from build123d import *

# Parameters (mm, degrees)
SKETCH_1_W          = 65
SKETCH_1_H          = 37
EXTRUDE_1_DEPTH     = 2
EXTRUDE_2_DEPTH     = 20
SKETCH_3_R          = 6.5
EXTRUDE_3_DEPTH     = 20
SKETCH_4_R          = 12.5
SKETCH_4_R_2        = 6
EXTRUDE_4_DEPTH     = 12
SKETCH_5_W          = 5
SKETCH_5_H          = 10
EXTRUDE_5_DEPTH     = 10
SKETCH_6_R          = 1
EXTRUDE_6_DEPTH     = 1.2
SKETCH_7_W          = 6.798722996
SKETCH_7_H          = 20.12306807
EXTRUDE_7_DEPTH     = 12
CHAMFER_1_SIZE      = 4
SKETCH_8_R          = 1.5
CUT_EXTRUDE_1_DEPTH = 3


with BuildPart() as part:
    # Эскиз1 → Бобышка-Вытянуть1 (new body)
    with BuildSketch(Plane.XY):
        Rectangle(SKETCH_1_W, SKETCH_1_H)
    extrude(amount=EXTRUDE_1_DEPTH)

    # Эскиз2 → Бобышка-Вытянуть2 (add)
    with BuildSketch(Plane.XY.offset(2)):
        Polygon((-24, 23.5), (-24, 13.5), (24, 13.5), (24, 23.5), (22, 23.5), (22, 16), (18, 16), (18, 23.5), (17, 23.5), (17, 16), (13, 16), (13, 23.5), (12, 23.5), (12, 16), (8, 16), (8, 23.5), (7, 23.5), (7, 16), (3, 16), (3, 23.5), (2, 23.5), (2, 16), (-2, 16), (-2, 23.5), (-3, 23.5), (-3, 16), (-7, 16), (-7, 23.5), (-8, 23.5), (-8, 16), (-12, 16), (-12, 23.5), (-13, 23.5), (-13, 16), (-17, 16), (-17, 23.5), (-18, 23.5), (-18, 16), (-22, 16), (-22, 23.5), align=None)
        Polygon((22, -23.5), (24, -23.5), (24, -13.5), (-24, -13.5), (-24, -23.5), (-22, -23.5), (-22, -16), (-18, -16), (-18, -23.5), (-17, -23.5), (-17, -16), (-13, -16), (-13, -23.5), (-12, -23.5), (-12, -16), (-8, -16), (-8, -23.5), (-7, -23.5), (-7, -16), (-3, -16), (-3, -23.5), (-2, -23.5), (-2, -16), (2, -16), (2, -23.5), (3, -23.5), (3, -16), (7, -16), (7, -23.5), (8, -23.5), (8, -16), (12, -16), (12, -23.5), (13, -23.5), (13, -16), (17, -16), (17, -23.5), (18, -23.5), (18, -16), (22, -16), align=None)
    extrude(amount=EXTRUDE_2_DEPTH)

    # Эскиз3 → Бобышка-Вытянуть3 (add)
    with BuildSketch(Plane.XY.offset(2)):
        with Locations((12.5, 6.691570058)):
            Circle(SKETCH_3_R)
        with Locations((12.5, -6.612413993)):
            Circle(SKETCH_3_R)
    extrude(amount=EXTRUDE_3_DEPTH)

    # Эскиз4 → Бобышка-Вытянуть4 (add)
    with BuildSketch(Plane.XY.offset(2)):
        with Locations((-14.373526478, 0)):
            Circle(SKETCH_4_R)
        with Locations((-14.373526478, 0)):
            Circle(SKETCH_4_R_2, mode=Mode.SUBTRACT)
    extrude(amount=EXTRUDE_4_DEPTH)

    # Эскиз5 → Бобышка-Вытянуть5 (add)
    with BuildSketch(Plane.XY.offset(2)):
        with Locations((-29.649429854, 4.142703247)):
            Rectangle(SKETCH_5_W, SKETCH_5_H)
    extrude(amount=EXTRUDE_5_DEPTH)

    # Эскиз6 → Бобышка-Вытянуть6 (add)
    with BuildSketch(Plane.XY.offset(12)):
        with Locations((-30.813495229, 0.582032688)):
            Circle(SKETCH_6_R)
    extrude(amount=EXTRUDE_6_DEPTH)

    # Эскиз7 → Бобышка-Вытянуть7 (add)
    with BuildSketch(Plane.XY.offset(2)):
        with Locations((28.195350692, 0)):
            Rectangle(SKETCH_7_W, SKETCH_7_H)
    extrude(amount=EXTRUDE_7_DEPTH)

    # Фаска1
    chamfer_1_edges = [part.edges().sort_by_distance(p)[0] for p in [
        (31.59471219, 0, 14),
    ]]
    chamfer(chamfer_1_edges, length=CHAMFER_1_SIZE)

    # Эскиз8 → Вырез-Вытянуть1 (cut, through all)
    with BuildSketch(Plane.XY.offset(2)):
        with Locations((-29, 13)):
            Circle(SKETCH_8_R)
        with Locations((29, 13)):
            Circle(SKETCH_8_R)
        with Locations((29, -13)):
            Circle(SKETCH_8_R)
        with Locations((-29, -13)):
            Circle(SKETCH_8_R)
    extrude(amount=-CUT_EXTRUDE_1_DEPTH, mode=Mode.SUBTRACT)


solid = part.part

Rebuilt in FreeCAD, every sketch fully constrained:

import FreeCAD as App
import Part
import Sketcher
from FreeCAD import Vector


def edges_at(feature, points):
    """Names of the edges that pass closest to the given points."""
    edges = feature.Shape.Edges
    near = lambda p: min(range(len(edges)), key=lambda i: edges[i].distToShape(Part.Vertex(*p))[0])
    return sorted({f"Edge{near(p) + 1}" for p in points})


def add_polygon(sketch, points):
    """Adds a closed chain of lines whose ends are joined by coincident constraints."""
    first, n = sketch.GeometryCount, len(points)
    for a, b in zip(points, points[1:] + points[:1]):
        sketch.addGeometry(Part.LineSegment(App.Vector(*a, 0), App.Vector(*b, 0)), False)
    for i in range(n):
        sketch.addConstraint(Sketcher.Constraint("Coincident", first + i, 2, first + (i + 1) % n, 1))

doc = App.newDocument("Part")
params = doc.addObject("Spreadsheet::Sheet", "Params")
for row, (alias, value) in enumerate([
    ("sketch1_width", "65 mm"),
    ("sketch1_height", "37 mm"),
    ("pad1_length", "2 mm"),
    ("sketch2_width", "48 mm"),
    ("sketch2_width2", "2 mm"),
    ("sketch2_width3", "4 mm"),
    ("sketch2_height", "10 mm"),
    ("sketch2_height2", "7.5 mm"),
    ("pad2_length", "20 mm"),
    ("sketch3_diameter", "13 mm"),
    ("pad3_length", "20 mm"),
    ("sketch4_diameter", "25 mm"),
    ("sketch4_diameter2", "12 mm"),
    ("pad4_length", "12 mm"),
    ("sketch5_width", "5 mm"),
    ("sketch5_height", "10 mm"),
    ("pad5_length", "10 mm"),
    ("sketch6_diameter", "2 mm"),
    ("pad6_length", "1.2 mm"),
    ("pad7_length", "12 mm"),
    ("chamfer_size", "4 mm"),
    ("sketch8_diameter", "3 mm"),
], start=1):
    params.set(f"A{row}", alias)
    params.set(f"B{row}", "=" + value)
    params.setAlias(f"B{row}", alias)

body = doc.addObject("PartDesign::Body", "Body")

sketch1 = body.newObject("Sketcher::SketchObject", "Sketch")
sketch1.AttachmentSupport = (doc.getObject("XY_Plane"), [""])
sketch1.MapMode = "FlatFace"
add_polygon(sketch1, [(-32, 18), (-32, -18), (32, -18), (32, 18)])
sketch1.addConstraint([
    Sketcher.Constraint("Vertical", 0),
    Sketcher.Constraint("Horizontal", 1),
    Sketcher.Constraint("Vertical", 2),
    Sketcher.Constraint("Horizontal", 3),
    Sketcher.Constraint("Symmetric", 0, 2, 2, 2, -1, 1),
    Sketcher.Constraint("DistanceX", 1, 1, 1, 2, 65.0),
    Sketcher.Constraint("DistanceY", 0, 2, 0, 1, 37.0),
])
sketch1.setExpression("Constraints[9]", "Params.sketch1_width")
sketch1.setExpression("Constraints[10]", "Params.sketch1_height")
pad1 = body.newObject("PartDesign::Pad", "Pad")
pad1.Profile = sketch1
pad1.setExpression("Length", "Params.pad1_length")

sketch2 = body.newObject("Sketcher::SketchObject", "Sketch001")
sketch2.AttachmentSupport = (doc.getObject("XY_Plane"), [""])
sketch2.MapMode = "FlatFace"
sketch2.AttachmentOffset = App.Placement(Vector(0, 0, 2), App.Rotation())
add_polygon(sketch2, [(-24, 23.5), (-24, 13.5), (24, 13.5), (24, 23.5), (22, 23.5), (22, 16), (18, 16), (18, 23.5), (17, 23.5), (17, 16), (13, 16), (13, 23.5), (12, 23.5), (12, 16), (8, 16), (8, 23.5), (7, 23.5), (7, 16), (3, 16), (3, 23.5), (2, 23.5), (2, 16), (-2, 16), (-2, 23.5), (-3, 23.5), (-3, 16), (-7, 16), (-7, 23.5), (-8, 23.5), (-8, 16), (-12, 16), (-12, 23.5), (-13, 23.5), (-13, 16), (-17, 16), (-17, 23.5), (-18, 23.5), (-18, 16), (-22, 16), (-22, 23.5)])
add_polygon(sketch2, [(22, -23.5), (24, -23.5), (24, -13.5), (-24, -13.5), (-24, -23.5), (-22, -23.5), (-22, -16), (-18, -16), (-18, -23.5), (-17, -23.5), (-17, -16), (-13, -16), (-13, -23.5), (-12, -23.5), (-12, -16), (-8, -16), (-8, -23.5), (-7, -23.5), (-7, -16), (-3, -16), (-3, -23.5), (-2, -23.5), (-2, -16), (2, -16), (2, -23.5), (3, -23.5), (3, -16), (7, -16), (7, -23.5), (8, -23.5), (8, -16), (12, -16), (12, -23.5), (13, -23.5), (13, -16), (17, -16), (17, -23.5), (18, -23.5), (18, -16), (22, -16)])
sketch2.addConstraint([
    Sketcher.Constraint("Vertical", 0),
    Sketcher.Constraint("Horizontal", 1),
    Sketcher.Constraint("Vertical", 2),
    Sketcher.Constraint("Horizontal", 3),
    Sketcher.Constraint("Vertical", 4),
    Sketcher.Constraint("Horizontal", 5),
    Sketcher.Constraint("Vertical", 6),
    Sketcher.Constraint("Horizontal", 7),
    Sketcher.Constraint("Vertical", 8),
    Sketcher.Constraint("Horizontal", 9),
    Sketcher.Constraint("Vertical", 10),
    Sketcher.Constraint("Horizontal", 11),
    Sketcher.Constraint("Vertical", 12),
    Sketcher.Constraint("Horizontal", 13),
    Sketcher.Constraint("Vertical", 14),
    Sketcher.Constraint("Horizontal", 15),
    Sketcher.Constraint("Vertical", 16),
    Sketcher.Constraint("Horizontal", 17),
    Sketcher.Constraint("Vertical", 18),
    Sketcher.Constraint("Horizontal", 19),
    Sketcher.Constraint("Vertical", 20),
    Sketcher.Constraint("Horizontal", 21),
    Sketcher.Constraint("Vertical", 22),
    Sketcher.Constraint("Horizontal", 23),
    Sketcher.Constraint("Vertical", 24),
    Sketcher.Constraint("Horizontal", 25),
    Sketcher.Constraint("Vertical", 26),
    Sketcher.Constraint("Horizontal", 27),
    Sketcher.Constraint("Vertical", 28),
    Sketcher.Constraint("Horizontal", 29),
    Sketcher.Constraint("Vertical", 30),
    Sketcher.Constraint("Horizontal", 31),
    Sketcher.Constraint("Vertical", 32),
    Sketcher.Constraint("Horizontal", 33),
    Sketcher.Constraint("Vertical", 34),
    Sketcher.Constraint("Horizontal", 35),
    Sketcher.Constraint("Vertical", 36),
    Sketcher.Constraint("Horizontal", 37),
    Sketcher.Constraint("Vertical", 38),
    Sketcher.Constraint("Horizontal", 39),
    Sketcher.Constraint("Horizontal", 40),
    Sketcher.Constraint("Vertical", 41),
    Sketcher.Constraint("Horizontal", 42),
    Sketcher.Constraint("Vertical", 43),
    Sketcher.Constraint("Horizontal", 44),
    Sketcher.Constraint("Vertical", 45),
    Sketcher.Constraint("Horizontal", 46),
    Sketcher.Constraint("Vertical", 47),
    Sketcher.Constraint("Horizontal", 48),
    Sketcher.Constraint("Vertical", 49),
    Sketcher.Constraint("Horizontal", 50),
    Sketcher.Constraint("Vertical", 51),
    Sketcher.Constraint("Horizontal", 52),
    Sketcher.Constraint("Vertical", 53),
    Sketcher.Constraint("Horizontal", 54),
    Sketcher.Constraint("Vertical", 55),
    Sketcher.Constraint("Horizontal", 56),
    Sketcher.Constraint("Vertical", 57),
    Sketcher.Constraint("Horizontal", 58),
    Sketcher.Constraint("Vertical", 59),
    Sketcher.Constraint("Horizontal", 60),
    Sketcher.Constraint("Vertical", 61),
    Sketcher.Constraint("Horizontal", 62),
    Sketcher.Constraint("Vertical", 63),
    Sketcher.Constraint("Horizontal", 64),
    Sketcher.Constraint("Vertical", 65),
    Sketcher.Constraint("Horizontal", 66),
    Sketcher.Constraint("Vertical", 67),
    Sketcher.Constraint("Horizontal", 68),
    Sketcher.Constraint("Vertical", 69),
    Sketcher.Constraint("Horizontal", 70),
    Sketcher.Constraint("Vertical", 71),
    Sketcher.Constraint("Horizontal", 72),
    Sketcher.Constraint("Vertical", 73),
    Sketcher.Constraint("Horizontal", 74),
    Sketcher.Constraint("Vertical", 75),
    Sketcher.Constraint("Horizontal", 76),
    Sketcher.Constraint("Vertical", 77),
    Sketcher.Constraint("Horizontal", 78),
    Sketcher.Constraint("Vertical", 79),
    Sketcher.Constraint("Symmetric", 39, 2, 40, 2, -1, 1),
    Sketcher.Constraint("Symmetric", 1, 2, 42, 2, -1, 1),
    Sketcher.Constraint("Symmetric", 3, 2, 44, 2, -1, 1),
    Sketcher.Constraint("Symmetric", 5, 2, 46, 2, -1, 1),
    Sketcher.Constraint("Symmetric", 7, 2, 48, 2, -1, 1),
    Sketcher.Constraint("Symmetric", 9, 2, 50, 2, -1, 1),
    Sketcher.Constraint("Symmetric", 11, 2, 52, 2, -1, 1),
    Sketcher.Constraint("Symmetric", 13, 2, 54, 2, -1, 1),
    Sketcher.Constraint("Symmetric", 15, 2, 56, 2, -1, 1),
    Sketcher.Constraint("Symmetric", 17, 2, 58, 2, -1, 1),
    Sketcher.Constraint("Symmetric", 19, 2, 60, 2, -1, 1),
    Sketcher.Constraint("Symmetric", 21, 2, 62, 2, -1, 1),
    Sketcher.Constraint("Symmetric", 23, 2, 64, 2, -1, 1),
    Sketcher.Constraint("Symmetric", 25, 2, 66, 2, -1, 1),
    Sketcher.Constraint("Symmetric", 27, 2, 68, 2, -1, 1),
    Sketcher.Constraint("Symmetric", 29, 2, 70, 2, -1, 1),
    Sketcher.Constraint("Symmetric", 31, 2, 72, 2, -1, 1),
    Sketcher.Constraint("Symmetric", 33, 2, 74, 2, -1, 1),
    Sketcher.Constraint("Symmetric", 35, 2, 76, 2, -1, 1),
    Sketcher.Constraint("Symmetric", 37, 2, 78, 2, -1, 1),
    Sketcher.Constraint("Symmetric", 19, 2, 22, 2, -2),
    Sketcher.Constraint("Symmetric", 17, 2, 24, 2, -2),
    Sketcher.Constraint("Symmetric", 15, 2, 26, 2, -2),
    Sketcher.Constraint("Symmetric", 13, 2, 28, 2, -2),
    Sketcher.Constraint("Symmetric", 11, 2, 30, 2, -2),
    Sketcher.Constraint("Symmetric", 9, 2, 32, 2, -2),
    Sketcher.Constraint("Symmetric", 7, 2, 34, 2, -2),
    Sketcher.Constraint("Symmetric", 5, 2, 36, 2, -2),
    Sketcher.Constraint("Symmetric", 3, 2, 38, 2, -2),
    Sketcher.Constraint("Horizontal", 3, 2, 6, 2),
    Sketcher.Constraint("Horizontal", 5, 2, 8, 2),
    Sketcher.Constraint("Horizontal", 7, 2, 10, 2),
    Sketcher.Constraint("Horizontal", 9, 2, 12, 2),
    Sketcher.Constraint("Horizontal", 11, 2, 14, 2),
    Sketcher.Constraint("Horizontal", 13, 2, 16, 2),
    Sketcher.Constraint("Horizontal", 15, 2, 18, 2),
    Sketcher.Constraint("Horizontal", 17, 2, 20, 2),
    Sketcher.Constraint("Vertical", 2, 2, 40, 2),
    Sketcher.Constraint("Equal", 5, 9),
    Sketcher.Constraint("Equal", 7, 11),
    Sketcher.Constraint("Equal", 9, 13),
    Sketcher.Constraint("Equal", 11, 15),
    Sketcher.Constraint("Equal", 13, 17),
    Sketcher.Constraint("Equal", 15, 19),
    Sketcher.Constraint("Equal", 17, 21),
    Sketcher.Constraint("DistanceX", 1, 1, 1, 2, 48.0),
    Sketcher.Constraint("DistanceX", 3, 2, 3, 1, 2.0),
    Sketcher.Constraint("DistanceX", 5, 2, 5, 1, 4.0),
    Sketcher.Constraint("DistanceY", 0, 2, 0, 1, 10.0),
    Sketcher.Constraint("DistanceY", 4, 2, 4, 1, 7.5),
    Sketcher.Constraint("DistanceY", -1, 1, 4, 2, 16.0),
])
sketch2.setExpression("Constraints[205]", "Params.sketch2_width")
sketch2.setExpression("Constraints[206]", "Params.sketch2_width2")
sketch2.setExpression("Constraints[207]", "Params.sketch2_width3")
sketch2.setExpression("Constraints[208]", "Params.sketch2_height")
sketch2.setExpression("Constraints[209]", "Params.sketch2_height2")
pad2 = body.newObject("PartDesign::Pad", "Pad001")
pad2.Profile = sketch2
pad2.setExpression("Length", "Params.pad2_length")

sketch3 = body.newObject("Sketcher::SketchObject", "Sketch002")
sketch3.AttachmentSupport = (doc.getObject("XY_Plane"), [""])
sketch3.MapMode = "FlatFace"
sketch3.AttachmentOffset = App.Placement(Vector(0, 0, 2), App.Rotation())
sketch3.addGeometry([
    Part.Circle(Vector(12, 7, 0), Vector(0, 0, 1), 6),
    Part.Circle(Vector(12, -7, 0), Vector(0, 0, 1), 6),
], False)
sketch3.addConstraint([
    Sketcher.Constraint("Equal", 0, 1),
    Sketcher.Constraint("Vertical", 0, 3, 1, 3),
    Sketcher.Constraint("Diameter", 0, 13.0),
    Sketcher.Constraint("DistanceX", -1, 1, 0, 3, 12.5),
    Sketcher.Constraint("DistanceY", -1, 1, 0, 3, 6.69157),
    Sketcher.Constraint("DistanceY", 1, 3, -1, 1, 6.612414),
])
sketch3.setExpression("Constraints[2]", "Params.sketch3_diameter")
pad3 = body.newObject("PartDesign::Pad", "Pad002")
pad3.Profile = sketch3
pad3.setExpression("Length", "Params.pad3_length")

sketch4 = body.newObject("Sketcher::SketchObject", "Sketch003")
sketch4.AttachmentSupport = (doc.getObject("XY_Plane"), [""])
sketch4.MapMode = "FlatFace"
sketch4.AttachmentOffset = App.Placement(Vector(0, 0, 2), App.Rotation())
sketch4.addGeometry([
    Part.Circle(Vector(-14, 0, 0), Vector(0, 0, 1), 12),
    Part.Circle(Vector(-14, 0, 0), Vector(0, 0, 1), 6),
], False)
sketch4.addConstraint([
    Sketcher.Constraint("Coincident", 1, 3, 0, 3),
    Sketcher.Constraint("PointOnObject", 0, 3, -1),
    Sketcher.Constraint("Diameter", 0, 25.0),
    Sketcher.Constraint("Diameter", 1, 12.0),
    Sketcher.Constraint("DistanceX", 0, 3, -1, 1, 14.373526),
])
sketch4.setExpression("Constraints[2]", "Params.sketch4_diameter")
sketch4.setExpression("Constraints[3]", "Params.sketch4_diameter2")
pad4 = body.newObject("PartDesign::Pad", "Pad003")
pad4.Profile = sketch4
pad4.setExpression("Length", "Params.pad4_length")

sketch5 = body.newObject("Sketcher::SketchObject", "Sketch004")
sketch5.AttachmentSupport = (doc.getObject("XY_Plane"), [""])
sketch5.MapMode = "FlatFace"
sketch5.AttachmentOffset = App.Placement(Vector(0, 0, 2), App.Rotation())
add_polygon(sketch5, [(-32.1, 9.1), (-32.1, -0.9), (-27.1, -0.9), (-27.1, 9.1)])
sketch5.addConstraint([
    Sketcher.Constraint("Vertical", 0),
    Sketcher.Constraint("Horizontal", 1),
    Sketcher.Constraint("Vertical", 2),
    Sketcher.Constraint("Horizontal", 3),
    Sketcher.Constraint("DistanceX", 1, 1, 1, 2, 5.0),
    Sketcher.Constraint("DistanceY", 0, 2, 0, 1, 10.0),
    Sketcher.Constraint("DistanceX", 0, 2, -1, 1, 32.14943),
    Sketcher.Constraint("DistanceY", 0, 2, -1, 1, 0.857297),
])
sketch5.setExpression("Constraints[8]", "Params.sketch5_width")
sketch5.setExpression("Constraints[9]", "Params.sketch5_height")
pad5 = body.newObject("PartDesign::Pad", "Pad004")
pad5.Profile = sketch5
pad5.setExpression("Length", "Params.pad5_length")

sketch6 = body.newObject("Sketcher::SketchObject", "Sketch005")
sketch6.AttachmentSupport = (doc.getObject("XY_Plane"), [""])
sketch6.MapMode = "FlatFace"
sketch6.AttachmentOffset = App.Placement(Vector(0, 0, 12), App.Rotation())
sketch6.addGeometry(Part.Circle(Vector(-30.8, 0.6, 0), Vector(0, 0, 1), 1), False)
sketch6.addConstraint([
    Sketcher.Constraint("Diameter", 0, 2.0),
    Sketcher.Constraint("DistanceX", 0, 3, -1, 1, 30.813495),
    Sketcher.Constraint("DistanceY", -1, 1, 0, 3, 0.582033),
])
sketch6.setExpression("Constraints[0]", "Params.sketch6_diameter")
pad6 = body.newObject("PartDesign::Pad", "Pad005")
pad6.Profile = sketch6
pad6.setExpression("Length", "Params.pad6_length")

sketch7 = body.newObject("Sketcher::SketchObject", "Sketch006")
sketch7.AttachmentSupport = (doc.getObject("XY_Plane"), [""])
sketch7.MapMode = "FlatFace"
sketch7.AttachmentOffset = App.Placement(Vector(0, 0, 2), App.Rotation())
add_polygon(sketch7, [(25, 10), (25, -10), (32, -10), (32, 10)])
sketch7.addConstraint([
    Sketcher.Constraint("Vertical", 0),
    Sketcher.Constraint("Horizontal", 1),
    Sketcher.Constraint("Vertical", 2),
    Sketcher.Constraint("Horizontal", 3),
    Sketcher.Constraint("DistanceY", 0, 2, 0, 1, 20.123068),
    Sketcher.Constraint("DistanceX", 1, 1, 1, 2, 6.798723),
    Sketcher.Constraint("DistanceX", -1, 1, 0, 2, 24.795989),
    Sketcher.Constraint("DistanceY", 0, 2, -1, 1, 10.061534),
])
pad7 = body.newObject("PartDesign::Pad", "Pad006")
pad7.Profile = sketch7
pad7.setExpression("Length", "Params.pad7_length")
doc.recompute()

chamfer = body.newObject("PartDesign::Chamfer", "Chamfer")
chamfer.Base = (pad7, edges_at(pad7, [(31.595, 0, 14)]))
chamfer.setExpression("Size", "Params.chamfer_size")

sketch8 = body.newObject("Sketcher::SketchObject", "Sketch007")
sketch8.AttachmentSupport = (doc.getObject("XY_Plane"), [""])
sketch8.MapMode = "FlatFace"
sketch8.AttachmentOffset = App.Placement(Vector(0, 0, 2), App.Rotation())
sketch8.addGeometry([
    Part.Circle(Vector(-29, 13, 0), Vector(0, 0, 1), 1.5),
    Part.Circle(Vector(29, 13, 0), Vector(0, 0, 1), 1.5),
    Part.Circle(Vector(29, -13, 0), Vector(0, 0, 1), 1.5),
    Part.Circle(Vector(-29, -13, 0), Vector(0, 0, 1), 1.5),
], False)
sketch8.addConstraint([
    Sketcher.Constraint("Equal", 0, 1),
    Sketcher.Constraint("Equal", 1, 2),
    Sketcher.Constraint("Equal", 2, 3),
    Sketcher.Constraint("Symmetric", 0, 3, 2, 3, -1, 1),
    Sketcher.Constraint("Symmetric", 1, 3, 3, 3, -1, 1),
    Sketcher.Constraint("Symmetric", 0, 3, 1, 3, -2),
    Sketcher.Constraint("Diameter", 0, 3.0),
    Sketcher.Constraint("DistanceX", 0, 3, -1, 1, 29.0),
    Sketcher.Constraint("DistanceY", -1, 1, 0, 3, 13.0),
])
sketch8.setExpression("Constraints[6]", "Params.sketch8_diameter")
pocket1 = body.newObject("PartDesign::Pocket", "Pocket")
pocket1.Profile = sketch8
pocket1.Type = "ThroughAll"

doc.recompute()
